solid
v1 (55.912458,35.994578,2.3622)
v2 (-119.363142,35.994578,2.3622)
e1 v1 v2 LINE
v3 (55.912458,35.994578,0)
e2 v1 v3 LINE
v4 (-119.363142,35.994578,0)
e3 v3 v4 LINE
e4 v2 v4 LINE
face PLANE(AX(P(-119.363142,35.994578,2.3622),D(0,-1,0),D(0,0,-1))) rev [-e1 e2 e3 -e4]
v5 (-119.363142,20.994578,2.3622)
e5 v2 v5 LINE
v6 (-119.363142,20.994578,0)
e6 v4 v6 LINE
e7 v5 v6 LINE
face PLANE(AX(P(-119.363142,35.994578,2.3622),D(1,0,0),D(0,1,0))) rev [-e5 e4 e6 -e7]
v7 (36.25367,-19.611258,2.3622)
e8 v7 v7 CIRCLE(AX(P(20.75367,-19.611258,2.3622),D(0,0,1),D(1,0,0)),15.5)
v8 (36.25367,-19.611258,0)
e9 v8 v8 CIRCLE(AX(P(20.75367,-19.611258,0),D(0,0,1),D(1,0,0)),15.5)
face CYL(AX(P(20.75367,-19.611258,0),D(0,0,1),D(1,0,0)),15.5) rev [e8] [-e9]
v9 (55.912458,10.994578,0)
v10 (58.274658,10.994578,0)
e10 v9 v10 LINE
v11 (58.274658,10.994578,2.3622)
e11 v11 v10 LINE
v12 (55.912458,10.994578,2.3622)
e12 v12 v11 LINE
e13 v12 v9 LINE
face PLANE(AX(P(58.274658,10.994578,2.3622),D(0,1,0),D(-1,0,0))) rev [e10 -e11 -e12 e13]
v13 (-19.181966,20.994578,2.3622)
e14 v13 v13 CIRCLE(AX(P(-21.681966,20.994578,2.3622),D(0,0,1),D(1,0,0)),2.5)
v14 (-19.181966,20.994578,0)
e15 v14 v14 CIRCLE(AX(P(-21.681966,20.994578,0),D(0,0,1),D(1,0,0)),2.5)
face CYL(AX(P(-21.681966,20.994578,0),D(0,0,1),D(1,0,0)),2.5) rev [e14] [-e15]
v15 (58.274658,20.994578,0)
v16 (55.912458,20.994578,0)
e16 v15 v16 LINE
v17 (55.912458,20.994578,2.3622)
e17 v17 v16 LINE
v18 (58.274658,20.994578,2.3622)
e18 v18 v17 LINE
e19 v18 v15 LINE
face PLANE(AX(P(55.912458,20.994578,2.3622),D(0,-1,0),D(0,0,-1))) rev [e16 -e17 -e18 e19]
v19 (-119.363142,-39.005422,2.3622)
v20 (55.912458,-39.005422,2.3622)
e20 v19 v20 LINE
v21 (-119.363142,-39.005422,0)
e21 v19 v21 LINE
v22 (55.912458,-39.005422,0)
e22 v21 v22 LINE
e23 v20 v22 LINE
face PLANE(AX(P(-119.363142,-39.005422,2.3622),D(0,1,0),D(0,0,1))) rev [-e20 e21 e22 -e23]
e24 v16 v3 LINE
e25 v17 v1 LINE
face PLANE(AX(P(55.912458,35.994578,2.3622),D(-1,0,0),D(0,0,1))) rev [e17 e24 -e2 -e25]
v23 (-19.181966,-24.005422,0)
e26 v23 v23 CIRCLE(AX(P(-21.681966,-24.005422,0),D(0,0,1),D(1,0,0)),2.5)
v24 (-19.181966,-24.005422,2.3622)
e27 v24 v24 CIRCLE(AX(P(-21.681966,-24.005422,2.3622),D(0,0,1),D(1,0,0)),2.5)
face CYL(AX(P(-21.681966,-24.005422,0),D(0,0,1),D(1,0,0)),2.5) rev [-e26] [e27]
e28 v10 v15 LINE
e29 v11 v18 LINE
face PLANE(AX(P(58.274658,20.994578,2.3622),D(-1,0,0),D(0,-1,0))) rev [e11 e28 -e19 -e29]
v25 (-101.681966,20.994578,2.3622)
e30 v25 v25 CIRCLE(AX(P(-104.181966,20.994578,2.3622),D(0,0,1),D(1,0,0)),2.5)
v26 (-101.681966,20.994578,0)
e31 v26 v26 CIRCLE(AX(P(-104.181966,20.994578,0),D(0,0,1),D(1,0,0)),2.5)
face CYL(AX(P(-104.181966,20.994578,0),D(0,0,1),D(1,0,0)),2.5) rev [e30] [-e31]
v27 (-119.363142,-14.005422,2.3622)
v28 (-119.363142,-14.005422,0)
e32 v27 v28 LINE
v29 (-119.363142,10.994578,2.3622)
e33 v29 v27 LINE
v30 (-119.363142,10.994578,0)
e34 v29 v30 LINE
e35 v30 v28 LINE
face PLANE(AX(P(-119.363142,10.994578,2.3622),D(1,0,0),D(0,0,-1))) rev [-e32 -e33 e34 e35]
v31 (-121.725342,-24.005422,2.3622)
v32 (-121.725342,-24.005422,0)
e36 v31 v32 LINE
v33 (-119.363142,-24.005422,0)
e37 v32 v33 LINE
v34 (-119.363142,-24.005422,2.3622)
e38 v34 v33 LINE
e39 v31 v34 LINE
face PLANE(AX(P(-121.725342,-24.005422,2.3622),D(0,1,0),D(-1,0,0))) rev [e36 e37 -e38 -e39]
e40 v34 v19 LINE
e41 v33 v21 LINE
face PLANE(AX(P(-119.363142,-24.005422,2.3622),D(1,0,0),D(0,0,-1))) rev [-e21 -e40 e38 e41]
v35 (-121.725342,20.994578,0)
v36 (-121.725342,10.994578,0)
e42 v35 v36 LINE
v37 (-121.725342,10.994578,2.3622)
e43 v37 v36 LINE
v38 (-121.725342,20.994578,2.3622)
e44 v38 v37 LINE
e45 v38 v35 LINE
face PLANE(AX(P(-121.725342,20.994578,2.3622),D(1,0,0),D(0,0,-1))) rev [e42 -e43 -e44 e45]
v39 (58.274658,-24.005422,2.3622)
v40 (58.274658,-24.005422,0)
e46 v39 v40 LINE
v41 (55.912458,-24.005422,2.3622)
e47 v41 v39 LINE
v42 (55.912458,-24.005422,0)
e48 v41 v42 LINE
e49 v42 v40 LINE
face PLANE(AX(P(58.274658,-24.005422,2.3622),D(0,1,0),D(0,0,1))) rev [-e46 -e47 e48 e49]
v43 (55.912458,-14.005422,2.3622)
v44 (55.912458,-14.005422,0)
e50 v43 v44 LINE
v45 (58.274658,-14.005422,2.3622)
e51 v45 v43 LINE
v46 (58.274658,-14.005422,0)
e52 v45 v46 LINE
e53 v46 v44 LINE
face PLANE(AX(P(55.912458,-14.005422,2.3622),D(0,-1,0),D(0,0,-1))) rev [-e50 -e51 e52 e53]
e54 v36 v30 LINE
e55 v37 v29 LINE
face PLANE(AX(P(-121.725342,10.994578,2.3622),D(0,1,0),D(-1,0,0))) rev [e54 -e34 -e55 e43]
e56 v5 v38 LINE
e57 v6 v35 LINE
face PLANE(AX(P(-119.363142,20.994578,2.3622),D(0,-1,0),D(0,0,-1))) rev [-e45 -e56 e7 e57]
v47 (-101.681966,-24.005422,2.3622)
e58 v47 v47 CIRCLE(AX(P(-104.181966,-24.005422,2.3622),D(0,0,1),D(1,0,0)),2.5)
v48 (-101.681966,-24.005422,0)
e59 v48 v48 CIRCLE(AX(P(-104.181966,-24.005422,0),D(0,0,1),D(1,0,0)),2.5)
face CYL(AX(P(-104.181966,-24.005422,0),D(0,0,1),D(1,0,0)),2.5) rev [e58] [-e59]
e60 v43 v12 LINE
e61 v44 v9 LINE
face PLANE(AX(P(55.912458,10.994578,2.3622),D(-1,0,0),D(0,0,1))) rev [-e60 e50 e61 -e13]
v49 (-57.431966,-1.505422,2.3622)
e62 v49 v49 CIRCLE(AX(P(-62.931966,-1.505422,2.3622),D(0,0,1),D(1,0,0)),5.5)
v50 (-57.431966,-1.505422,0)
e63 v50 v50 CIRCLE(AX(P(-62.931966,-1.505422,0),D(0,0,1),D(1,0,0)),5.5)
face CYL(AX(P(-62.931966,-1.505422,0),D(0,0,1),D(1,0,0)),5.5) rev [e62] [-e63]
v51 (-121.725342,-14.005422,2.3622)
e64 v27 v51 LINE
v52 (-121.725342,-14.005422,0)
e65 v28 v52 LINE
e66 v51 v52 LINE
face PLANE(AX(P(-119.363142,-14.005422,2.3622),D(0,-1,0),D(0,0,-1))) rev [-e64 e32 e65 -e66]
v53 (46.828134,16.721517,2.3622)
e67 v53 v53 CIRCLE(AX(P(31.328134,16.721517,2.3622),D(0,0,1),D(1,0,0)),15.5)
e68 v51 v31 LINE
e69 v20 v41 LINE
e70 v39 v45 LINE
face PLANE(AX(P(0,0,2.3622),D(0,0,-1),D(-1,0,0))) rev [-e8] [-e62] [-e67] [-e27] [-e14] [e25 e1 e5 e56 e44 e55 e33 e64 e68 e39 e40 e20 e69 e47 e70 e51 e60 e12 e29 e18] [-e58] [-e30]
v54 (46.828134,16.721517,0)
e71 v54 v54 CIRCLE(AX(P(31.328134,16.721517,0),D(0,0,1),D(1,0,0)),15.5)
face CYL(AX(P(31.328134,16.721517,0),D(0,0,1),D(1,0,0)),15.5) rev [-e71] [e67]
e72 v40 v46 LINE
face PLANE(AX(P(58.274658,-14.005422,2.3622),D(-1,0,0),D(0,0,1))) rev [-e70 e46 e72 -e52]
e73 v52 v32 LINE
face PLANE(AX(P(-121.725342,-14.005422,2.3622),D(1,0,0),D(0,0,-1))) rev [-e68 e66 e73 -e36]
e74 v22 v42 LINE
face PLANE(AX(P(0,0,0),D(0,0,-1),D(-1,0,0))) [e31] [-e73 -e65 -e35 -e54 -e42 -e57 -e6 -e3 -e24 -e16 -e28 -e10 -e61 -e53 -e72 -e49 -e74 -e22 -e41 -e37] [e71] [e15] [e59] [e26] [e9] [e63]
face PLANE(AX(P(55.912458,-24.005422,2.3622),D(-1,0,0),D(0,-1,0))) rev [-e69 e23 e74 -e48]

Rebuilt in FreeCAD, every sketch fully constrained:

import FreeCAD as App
import Part
import Sketcher

V = App.Vector


def add_polygon(sketch, points):
    """Adds a closed chain of lines whose ends are joined by coincident constraints."""
    first, n = sketch.GeometryCount, len(points)
    for a, b in zip(points, points[1:] + points[:1]):
        sketch.addGeometry(Part.LineSegment(App.Vector(*a, 0), App.Vector(*b, 0)), False)
    for i in range(n):
        sketch.addConstraint(Sketcher.Constraint("Coincident", first + i, 2, first + (i + 1) % n, 1))

doc = App.newDocument("Part")
params = doc.addObject("Spreadsheet::Sheet", "Params")
for row, (alias, value) in enumerate([
    ("sketch1_height", "15 mm"),
    ("sketch1_height2", "10 mm"),
    ("sketch1_height3", "25 mm"),
    ("pad1_length", "2.3622 mm"),
    ("sketch2_diameter", "31 mm"),
    ("sketch2_diameter2", "11 mm"),
    ("sketch2_diameter3", "5 mm"),
], start=1):
    params.set(f"A{row}", alias)
    params.set(f"B{row}", "=" + value)
    params.setAlias(f"B{row}", alias)

body = doc.addObject("PartDesign::Body", "Body")

sketch1 = body.newObject("Sketcher::SketchObject", "Sketch")
sketch1.AttachmentSupport = (doc.getObject("XY_Plane"), [""])
sketch1.MapMode = "FlatFace"
add_polygon(sketch1, [(-119.363142, 35.994578), (-119.363142, 20.994578), (-121.725342, 20.994578), (-121.725342, 10.994578), (-119.363142, 10.994578), (-119.363142, -14.005422), (-121.725342, -14.005422), (-121.725342, -24.005422), (-119.363142, -24.005422), (-119.363142, -39.005422), (55.912458, -39.005422), (55.912458, -24.005422), (58.274658, -24.005422), (58.274658, -14.005422), (55.912458, -14.005422), (55.912458, 10.994578), (58.274658, 10.994578), (58.274658, 20.994578), (55.912458, 20.994578), (55.912458, 35.994578)])
sketch1.addConstraint(Sketcher.Constraint("Vertical", 0))
sketch1.addConstraint(Sketcher.Constraint("Horizontal", 1))
sketch1.addConstraint(Sketcher.Constraint("Vertical", 2))
sketch1.addConstraint(Sketcher.Constraint("Horizontal", 3))
sketch1.addConstraint(Sketcher.Constraint("Vertical", 4))
sketch1.addConstraint(Sketcher.Constraint("Horizontal", 5))
sketch1.addConstraint(Sketcher.Constraint("Vertical", 6))
sketch1.addConstraint(Sketcher.Constraint("Horizontal", 7))
sketch1.addConstraint(Sketcher.Constraint("Vertical", 8))
sketch1.addConstraint(Sketcher.Constraint("Horizontal", 9))
sketch1.addConstraint(Sketcher.Constraint("Vertical", 10))
sketch1.addConstraint(Sketcher.Constraint("Horizontal", 11))
sketch1.addConstraint(Sketcher.Constraint("Vertical", 12))
sketch1.addConstraint(Sketcher.Constraint("Horizontal", 13))
sketch1.addConstraint(Sketcher.Constraint("Vertical", 14))
sketch1.addConstraint(Sketcher.Constraint("Horizontal", 15))
sketch1.addConstraint(Sketcher.Constraint("Vertical", 16))
sketch1.addConstraint(Sketcher.Constraint("Horizontal", 17))
sketch1.addConstraint(Sketcher.Constraint("Vertical", 18))
sketch1.addConstraint(Sketcher.Constraint("Horizontal", 19))
sketch1.addConstraint(Sketcher.Constraint("Horizontal", 7, 2, 10, 2))
sketch1.addConstraint(Sketcher.Constraint("Horizontal", 5, 2, 12, 2))
sketch1.addConstraint(Sketcher.Constraint("Horizontal", 3, 2, 14, 2))
sketch1.addConstraint(Sketcher.Constraint("Horizontal", 1, 2, 16, 2))
sketch1.addConstraint(Sketcher.Constraint("Vertical", 0, 2, 3, 2))
sketch1.addConstraint(Sketcher.Constraint("Vertical", 2, 2, 5, 2))
sketch1.addConstraint(Sketcher.Constraint("Vertical", 4, 2, 7, 2))
sketch1.addConstraint(Sketcher.Constraint("Vertical", 10, 2, 13, 2))
sketch1.addConstraint(Sketcher.Constraint("Vertical", 12, 2, 15, 2))
sketch1.addConstraint(Sketcher.Constraint("Vertical", 14, 2, 17, 2))
sketch1.addConstraint(Sketcher.Constraint("Equal", 7, 11))
sketch1.addConstraint(Sketcher.Constraint("Equal", 2, 6))
sketch1.addConstraint(Sketcher.Constraint("Equal", 0, 8))
sketch1.addConstraint(Sketcher.Constraint("DistanceY", 0, 2, 0, 1, 15.0))
sketch1.addConstraint(Sketcher.Constraint("DistanceY", 2, 2, 2, 1, 10.0))
sketch1.addConstraint(Sketcher.Constraint("DistanceY", 4, 2, 4, 1, 25.0))
sketch1.addConstraint(Sketcher.Constraint("DistanceX", 1, 2, 1, 1, 2.3622))
sketch1.addConstraint(Sketcher.Constraint("DistanceX", 9, 1, 9, 2, 175.2756))
sketch1.addConstraint(Sketcher.Constraint("DistanceX", 0, 2, -1, 1, 119.363142))
sketch1.addConstraint(Sketcher.Constraint("DistanceY", -1, 1, 0, 2, 20.994578))
sketch1.setExpression("Constraints[53]", "Params.sketch1_height")
sketch1.setExpression("Constraints[54]", "Params.sketch1_height2")
sketch1.setExpression("Constraints[55]", "Params.sketch1_height3")
pad1 = body.newObject("PartDesign::Pad", "Pad")
pad1.Profile = sketch1
pad1.setExpression("Length", "Params.pad1_length")

sketch2 = body.newObject("Sketcher::SketchObject", "Sketch001")
sketch2.AttachmentSupport = (doc.getObject("XY_Plane"), [""])
sketch2.MapMode = "FlatFace"
sketch2.AttachmentOffset = App.Placement(V(0, 0, 2.3622), App.Rotation())
sketch2.addGeometry(Part.Circle(V(31.328134, 16.721517, 0), V(0, 0, 1), 15.5), False)
sketch2.addGeometry(Part.Circle(V(20.75367, -19.611258, 0), V(0, 0, 1), 15.5), False)
sketch2.addGeometry(Part.Circle(V(-62.931966, -1.505422, 0), V(0, 0, 1), 5.5), False)
sketch2.addGeometry(Part.Circle(V(-104.181966, 20.994578, 0), V(0, 0, 1), 2.5), False)
sketch2.addGeometry(Part.Circle(V(-21.681966, 20.994578, 0), V(0, 0, 1), 2.5), False)
sketch2.addGeometry(Part.Circle(V(-21.681966, -24.005422, 0), V(0, 0, 1), 2.5), False)
sketch2.addGeometry(Part.Circle(V(-104.181966, -24.005422, 0), V(0, 0, 1), 2.5), False)
sketch2.addConstraint(Sketcher.Constraint("Equal", 0, 1))
sketch2.addConstraint(Sketcher.Constraint("Equal", 3, 4))
sketch2.addConstraint(Sketcher.Constraint("Equal", 4, 5))
sketch2.addConstraint(Sketcher.Constraint("Equal", 5, 6))
sketch2.addConstraint(Sketcher.Constraint("Horizontal", 3, 3, 4, 3))
sketch2.addConstraint(Sketcher.Constraint("Horizontal", 5, 3, 6, 3))
sketch2.addConstraint(Sketcher.Constraint("Vertical", 4, 3, 5, 3))
sketch2.addConstraint(Sketcher.Constraint("Vertical", 3, 3, 6, 3))
sketch2.addConstraint(Sketcher.Constraint("Diameter", 0, 31.0))
sketch2.addConstraint(Sketcher.Constraint("Diameter", 2, 11.0))
sketch2.addConstraint(Sketcher.Constraint("Diameter", 3, 5.0))
sketch2.addConstraint(Sketcher.Constraint("DistanceY", 5, 3, 4, 3, 45.0))
sketch2.addConstraint(Sketcher.Constraint("DistanceY", 2, 3, 3, 3, 22.5))
sketch2.addConstraint(Sketcher.Constraint("DistanceX", 3, 3, 4, 3, 82.5))
sketch2.addConstraint(Sketcher.Constraint("DistanceX", 3, 3, 2, 3, 41.25))
sketch2.addConstraint(Sketcher.Constraint("DistanceX", 2, 3, 0, 3, 94.2601))
sketch2.addConstraint(Sketcher.Constraint("DistanceX", -1, 1, 1, 3, 20.75367))
sketch2.addConstraint(Sketcher.Constraint("DistanceY", 1, 3, -1, 1, 19.611258))
sketch2.addConstraint(Sketcher.Constraint("DistanceY", 2, 3, 0, 3, 18.226939))
sketch2.addConstraint(Sketcher.Constraint("DistanceX", -1, 1, 0, 3, 31.328134))
sketch2.addConstraint(Sketcher.Constraint("DistanceY", -1, 1, 0, 3, 16.721517))
sketch2.setExpression("Constraints[8]", "Params.sketch2_diameter")
sketch2.setExpression("Constraints[9]", "Params.sketch2_diameter2")
sketch2.setExpression("Constraints[10]", "Params.sketch2_diameter3")
pocket1 = body.newObject("PartDesign::Pocket", "Pocket")
pocket1.Profile = sketch2
pocket1.Type = "ThroughAll"

doc.recompute()
